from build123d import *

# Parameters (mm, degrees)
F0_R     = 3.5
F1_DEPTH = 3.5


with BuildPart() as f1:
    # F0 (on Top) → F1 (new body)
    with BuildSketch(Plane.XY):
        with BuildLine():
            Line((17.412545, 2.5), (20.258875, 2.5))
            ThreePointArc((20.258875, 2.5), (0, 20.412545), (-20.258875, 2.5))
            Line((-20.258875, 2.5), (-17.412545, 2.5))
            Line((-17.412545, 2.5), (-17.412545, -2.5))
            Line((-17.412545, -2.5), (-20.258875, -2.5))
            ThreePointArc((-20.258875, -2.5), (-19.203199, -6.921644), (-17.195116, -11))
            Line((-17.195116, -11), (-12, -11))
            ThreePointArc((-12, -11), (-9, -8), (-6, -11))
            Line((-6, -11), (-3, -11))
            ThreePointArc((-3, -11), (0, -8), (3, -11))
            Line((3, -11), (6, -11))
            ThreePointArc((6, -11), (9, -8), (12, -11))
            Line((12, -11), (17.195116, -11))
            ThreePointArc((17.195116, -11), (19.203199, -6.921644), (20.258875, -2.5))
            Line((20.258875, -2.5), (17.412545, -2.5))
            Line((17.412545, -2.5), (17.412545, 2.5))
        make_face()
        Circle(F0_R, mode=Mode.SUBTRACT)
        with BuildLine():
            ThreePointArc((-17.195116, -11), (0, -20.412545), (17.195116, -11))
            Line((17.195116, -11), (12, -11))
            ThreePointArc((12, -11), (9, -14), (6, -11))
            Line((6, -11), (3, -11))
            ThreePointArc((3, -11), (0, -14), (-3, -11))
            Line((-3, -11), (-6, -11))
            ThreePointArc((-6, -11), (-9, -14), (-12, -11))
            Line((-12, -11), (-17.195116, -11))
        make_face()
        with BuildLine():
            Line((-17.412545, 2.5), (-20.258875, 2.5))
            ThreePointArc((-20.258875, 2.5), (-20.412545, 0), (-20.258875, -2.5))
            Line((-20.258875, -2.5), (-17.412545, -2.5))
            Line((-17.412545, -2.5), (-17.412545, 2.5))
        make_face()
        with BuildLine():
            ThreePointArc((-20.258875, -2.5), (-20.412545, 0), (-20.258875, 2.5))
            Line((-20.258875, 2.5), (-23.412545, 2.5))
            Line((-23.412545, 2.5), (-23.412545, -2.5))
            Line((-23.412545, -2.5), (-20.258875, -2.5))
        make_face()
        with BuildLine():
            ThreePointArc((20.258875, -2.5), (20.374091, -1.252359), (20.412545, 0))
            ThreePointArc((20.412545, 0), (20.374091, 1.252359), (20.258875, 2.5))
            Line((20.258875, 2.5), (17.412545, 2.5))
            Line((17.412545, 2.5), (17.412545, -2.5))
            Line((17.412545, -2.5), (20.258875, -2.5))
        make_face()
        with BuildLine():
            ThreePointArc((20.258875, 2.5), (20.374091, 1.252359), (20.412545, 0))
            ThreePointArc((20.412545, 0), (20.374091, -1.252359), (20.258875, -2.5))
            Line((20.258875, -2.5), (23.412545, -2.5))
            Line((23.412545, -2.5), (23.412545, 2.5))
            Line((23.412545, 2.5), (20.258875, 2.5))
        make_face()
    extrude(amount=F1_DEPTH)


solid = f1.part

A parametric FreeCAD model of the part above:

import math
import FreeCAD as App
import Part
import Sketcher
Q = App.Units.Quantity

doc = App.newDocument("Part")
body = doc.addObject("PartDesign::Body", "Body")

sketch1 = doc.addObject("Sketcher::SketchObject", "Sketch")
body.addObject(sketch1)
sketch1.AttachmentSupport = (doc.XY_Plane, [""])
sketch1.MapMode = "FlatFace"
sketch1.addGeometry(Part.ArcOfCircle(Part.Circle(App.Vector(0, -0.000001, 0), App.Vector(0, 0, 1), 20.412546), math.radians(7.03489), math.radians(172.96511)), False)
sketch1.addGeometry(Part.LineSegment(App.Vector(-20.258875, 2.5, 0), App.Vector(-23.412545, 2.5, 0)), False)
sketch1.addGeometry(Part.LineSegment(App.Vector(-23.412545, 2.5, 0), App.Vector(-23.412545, -2.5, 0)), False)
sketch1.addGeometry(Part.LineSegment(App.Vector(-23.412545, -2.5, 0), App.Vector(-20.258875, -2.5, 0)), False)
sketch1.addGeometry(Part.ArcOfCircle(Part.Circle(App.Vector(0.000007, 0.000003, 0), App.Vector(0, 0, 1), 20.412553), math.radians(-172.965106), math.radians(-147.392285)), False)
sketch1.addGeometry(Part.ArcOfCircle(Part.Circle(App.Vector(0, 0.000001, 0), App.Vector(0, 0, 1), 20.412546), math.radians(-147.392278), math.radians(-32.607722)), False)
sketch1.addGeometry(Part.ArcOfCircle(Part.Circle(App.Vector(-0.000007, 0.000003, 0), App.Vector(0, 0, 1), 20.412553), math.radians(-32.607715), math.radians(-7.034894)), False)
sketch1.addGeometry(Part.LineSegment(App.Vector(20.258875, -2.5, 0), App.Vector(23.412545, -2.5, 0)), False)
sketch1.addGeometry(Part.LineSegment(App.Vector(23.412545, -2.5, 0), App.Vector(23.412545, 2.5, 0)), False)
sketch1.addGeometry(Part.LineSegment(App.Vector(23.412545, 2.5, 0), App.Vector(20.258875, 2.5, 0)), False)
sketch1.addGeometry(Part.Circle(App.Vector(9, -11, 0), App.Vector(0, 0, 1), 3), False)
sketch1.addGeometry(Part.Circle(App.Vector(0, -11, 0), App.Vector(0, 0, 1), 3), False)
sketch1.addGeometry(Part.Circle(App.Vector(-9, -11, 0), App.Vector(0, 0, 1), 3), False)
sketch1.addGeometry(Part.Circle(App.Vector(0, 0, 0), App.Vector(0, 0, 1), 3.5), False)
sketch1.addConstraint(Sketcher.Constraint("Coincident", 0, 2, 1, 1))
sketch1.addConstraint(Sketcher.Constraint("Coincident", 1, 2, 2, 1))
sketch1.addConstraint(Sketcher.Constraint("Coincident", 2, 2, 3, 1))
sketch1.addConstraint(Sketcher.Constraint("Coincident", 3, 2, 4, 1))
sketch1.addConstraint(Sketcher.Constraint("Tangent", 4, 2, 5, 1))
sketch1.addConstraint(Sketcher.Constraint("Tangent", 5, 2, 6, 1))
sketch1.addConstraint(Sketcher.Constraint("Coincident", 6, 2, 7, 1))
sketch1.addConstraint(Sketcher.Constraint("Coincident", 7, 2, 8, 1))
sketch1.addConstraint(Sketcher.Constraint("Coincident", 8, 2, 9, 1))
sketch1.addConstraint(Sketcher.Constraint("Coincident", 9, 2, 0, 1))
sketch1.addConstraint(Sketcher.Constraint("Horizontal", 1))
sketch1.addConstraint(Sketcher.Constraint("Vertical", 2))
sketch1.addConstraint(Sketcher.Constraint("Horizontal", 3))
sketch1.addConstraint(Sketcher.Constraint("Horizontal", 7))
sketch1.addConstraint(Sketcher.Constraint("Vertical", 8))
sketch1.addConstraint(Sketcher.Constraint("Horizontal", 9))
sketch1.addConstraint(Sketcher.Constraint("Coincident", 0, 3, -1, 1))
sketch1.addConstraint(Sketcher.Constraint("Coincident", 4, 3, -1, 1))
sketch1.addConstraint(Sketcher.Constraint("Coincident", 6, 3, -1, 1))
sketch1.addConstraint(Sketcher.Constraint("Coincident", 13, 3, -1, 1))
sketch1.addConstraint(Sketcher.Constraint("Equal", 0, 5))
sketch1.addConstraint(Sketcher.Constraint("Equal", 10, 11))
sketch1.addConstraint(Sketcher.Constraint("Equal", 11, 12))
sketch1.addConstraint(Sketcher.Constraint("Symmetric", 1, 2, 7, 2, -1, 1))
sketch1.addConstraint(Sketcher.Constraint("Symmetric", 10, 3, 12, 3, -2))
sketch1.addConstraint(Sketcher.Constraint("PointOnObject", 11, 3, -2))
sketch1.addConstraint(Sketcher.Constraint("Horizontal", 10, 3, 11, 3))
sketch1.addConstraint(Sketcher.Constraint("Horizontal", 12, 3, 4, 2))
sketch1.addConstraint(Sketcher.Constraint("Horizontal", 4, 2, 5, 2))
sketch1.addConstraint(Sketcher.Constraint("Horizontal", 3, 2, 6, 2))
sketch1.addConstraint(Sketcher.Constraint("Horizontal", 1, 2, 8, 2))
sketch1.addConstraint(Sketcher.Constraint("Diameter", 10, Q("6 mm")))
sketch1.addConstraint(Sketcher.Constraint("Diameter", 13, Q("7 mm")))
sketch1.addConstraint(Sketcher.Constraint("DistanceY", 2, 2, 2, 1, Q("5 mm")))
sketch1.addConstraint(Sketcher.Constraint("DistanceX", -1, 1, 10, 3, Q("9 mm")))
sketch1.addConstraint(Sketcher.Constraint("DistanceY", 10, 3, -1, 1, Q("11 mm")))
sketch1.addConstraint(Sketcher.Constraint("Radius", 0, Q("20.412546 mm")))
sketch1.addConstraint(Sketcher.Constraint("DistanceX", 1, 2, 1, 1, Q("3.15367 mm")))
pad1 = doc.addObject("PartDesign::Pad", "Pad")
body.addObject(pad1)
pad1.Profile = sketch1
pad1.Length = 3.5

doc.recompute()
